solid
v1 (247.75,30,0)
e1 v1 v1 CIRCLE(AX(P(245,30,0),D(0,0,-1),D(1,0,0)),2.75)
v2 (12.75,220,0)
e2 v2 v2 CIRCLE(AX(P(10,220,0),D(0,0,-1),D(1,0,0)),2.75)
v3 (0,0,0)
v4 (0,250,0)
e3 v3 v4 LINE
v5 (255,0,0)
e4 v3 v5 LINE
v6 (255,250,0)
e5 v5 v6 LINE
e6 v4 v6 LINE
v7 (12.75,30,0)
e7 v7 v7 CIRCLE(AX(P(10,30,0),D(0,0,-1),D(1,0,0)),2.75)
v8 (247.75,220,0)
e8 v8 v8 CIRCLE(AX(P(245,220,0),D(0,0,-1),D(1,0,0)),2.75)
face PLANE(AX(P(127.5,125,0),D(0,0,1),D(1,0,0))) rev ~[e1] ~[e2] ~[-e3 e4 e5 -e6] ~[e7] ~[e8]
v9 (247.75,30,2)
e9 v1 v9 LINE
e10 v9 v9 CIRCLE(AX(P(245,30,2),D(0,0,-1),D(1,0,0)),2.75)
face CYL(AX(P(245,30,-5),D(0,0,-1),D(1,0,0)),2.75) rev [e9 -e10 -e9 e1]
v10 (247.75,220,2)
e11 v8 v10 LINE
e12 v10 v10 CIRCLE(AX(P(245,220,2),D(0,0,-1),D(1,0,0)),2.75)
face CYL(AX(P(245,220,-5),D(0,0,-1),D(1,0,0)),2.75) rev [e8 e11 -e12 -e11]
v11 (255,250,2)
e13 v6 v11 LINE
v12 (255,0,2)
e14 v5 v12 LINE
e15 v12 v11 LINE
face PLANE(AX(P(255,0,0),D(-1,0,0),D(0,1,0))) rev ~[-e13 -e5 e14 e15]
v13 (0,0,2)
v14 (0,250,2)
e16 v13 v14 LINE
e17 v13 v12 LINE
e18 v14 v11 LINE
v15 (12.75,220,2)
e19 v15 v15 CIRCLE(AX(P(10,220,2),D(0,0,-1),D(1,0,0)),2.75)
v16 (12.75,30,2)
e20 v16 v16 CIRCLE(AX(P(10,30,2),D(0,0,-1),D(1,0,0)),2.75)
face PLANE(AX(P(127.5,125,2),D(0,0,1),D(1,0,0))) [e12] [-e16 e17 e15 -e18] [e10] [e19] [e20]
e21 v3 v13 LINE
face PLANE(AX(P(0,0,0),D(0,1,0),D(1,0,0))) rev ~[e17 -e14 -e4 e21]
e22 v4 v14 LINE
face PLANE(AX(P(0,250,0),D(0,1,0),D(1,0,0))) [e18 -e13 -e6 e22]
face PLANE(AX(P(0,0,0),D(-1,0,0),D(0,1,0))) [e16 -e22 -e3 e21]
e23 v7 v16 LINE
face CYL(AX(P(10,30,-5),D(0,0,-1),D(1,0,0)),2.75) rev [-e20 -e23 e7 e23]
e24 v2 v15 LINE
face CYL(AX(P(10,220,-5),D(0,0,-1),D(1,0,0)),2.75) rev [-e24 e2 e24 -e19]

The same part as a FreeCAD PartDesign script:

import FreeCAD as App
import Part
import Sketcher
from FreeCAD import Vector

doc = App.newDocument("Part")
body = doc.addObject("PartDesign::Body", "Body")

# Sketch on XY plane
sketch1 = body.newObject("Sketcher::SketchObject", "Sketch")
sketch1.AttachmentSupport = (doc.getObject("XY_Plane"), [""])
sketch1.MapMode = "FlatFace"
sketch1.AttachmentOffset = App.Placement(Vector(0, 0, -5), App.Rotation())
sketch1.addGeometry(Part.Circle(Vector(245, 220, 0), Vector(0, 0, 1), 2.8), False)
sketch1.addConstraint([
    Sketcher.Constraint("Diameter", 0, 5.5),
    Sketcher.Constraint("DistanceX", -1, 1, 0, 3, 245.0),
    Sketcher.Constraint("DistanceY", -1, 1, 0, 3, 220.0),
])
pad1 = body.newObject("PartDesign::Pad", "Pad")
pad1.Profile = sketch1
pad1.Length = 10
body2 = doc.addObject("PartDesign::Body", "Body001")

# Sketch on XY plane
sketch2 = body2.newObject("Sketcher::SketchObject", "Sketch001")
sketch2.AttachmentSupport = (doc.getObject("XY_Plane001"), [""])
sketch2.MapMode = "FlatFace"
sketch2.AttachmentOffset = App.Placement(Vector(0, 0, -5), App.Rotation())
sketch2.addGeometry(Part.Circle(Vector(245, 30, 0), Vector(0, 0, 1), 2.8), False)
sketch2.addConstraint([
    Sketcher.Constraint("Diameter", 0, 5.5),
    Sketcher.Constraint("DistanceX", -1, 1, 0, 3, 245.0),
    Sketcher.Constraint("DistanceY", -1, 1, 0, 3, 30.0),
])
pad2 = body2.newObject("PartDesign::Pad", "Pad001")
pad2.Profile = sketch2
pad2.Length = 10
body3 = doc.addObject("PartDesign::Body", "Body002")

# Sketch on XY plane
sketch3 = body3.newObject("Sketcher::SketchObject", "Sketch002")
sketch3.AttachmentSupport = (doc.getObject("XY_Plane002"), [""])
sketch3.MapMode = "FlatFace"
sketch3.AttachmentOffset = App.Placement(Vector(0, 0, -5), App.Rotation())
sketch3.addGeometry(Part.Circle(Vector(10, 220, 0), Vector(0, 0, 1), 2.8), False)
sketch3.addConstraint([
    Sketcher.Constraint("Diameter", 0, 5.5),
    Sketcher.Constraint("DistanceX", -1, 1, 0, 3, 10.0),
    Sketcher.Constraint("DistanceY", -1, 1, 0, 3, 220.0),
])
pad3 = body3.newObject("PartDesign::Pad", "Pad002")
pad3.Profile = sketch3
pad3.Length = 10
body4 = doc.addObject("PartDesign::Body", "Body003")

# Sketch on XY plane
sketch4 = body4.newObject("Sketcher::SketchObject", "Sketch003")
sketch4.AttachmentSupport = (doc.getObject("XY_Plane003"), [""])
sketch4.MapMode = "FlatFace"
sketch4.AttachmentOffset = App.Placement(Vector(0, 0, -5), App.Rotation())
sketch4.addGeometry(Part.Circle(Vector(10, 30, 0), Vector(0, 0, 1), 2.8), False)
sketch4.addConstraint([
    Sketcher.Constraint("Diameter", 0, 5.5),
    Sketcher.Constraint("DistanceX", -1, 1, 0, 3, 10.0),
    Sketcher.Constraint("DistanceY", -1, 1, 0, 3, 30.0),
])
pad4 = body4.newObject("PartDesign::Pad", "Pad003")
pad4.Profile = sketch4
pad4.Length = 10
body5 = doc.addObject("PartDesign::Body", "Body004")

# Sketch on XY plane
sketch5 = body5.newObject("Sketcher::SketchObject", "Sketch004")
sketch5.AttachmentSupport = (doc.getObject("XY_Plane004"), [""])
sketch5.MapMode = "FlatFace"
sketch5.addGeometry([
    Part.LineSegment(Vector(0, 250, 0), Vector(0, 0, 0)),
    Part.LineSegment(Vector(0, 0, 0), Vector(255, 0, 0)),
    Part.LineSegment(Vector(255, 0, 0), Vector(255, 250, 0)),
    Part.LineSegment(Vector(255, 250, 0), Vector(0, 250, 0)),
], False)
sketch5.addConstraint([
    Sketcher.Constraint("Coincident", 0, 2, 1, 1),
    Sketcher.Constraint("Coincident", 1, 2, 2, 1),
    Sketcher.Constraint("Coincident", 2, 2, 3, 1),
    Sketcher.Constraint("Coincident", 3, 2, 0, 1),
    Sketcher.Constraint("Vertical", 0),
    Sketcher.Constraint("Horizontal", 1),
    Sketcher.Constraint("Vertical", 2),
    Sketcher.Constraint("Horizontal", 3),
    Sketcher.Constraint("Coincident", 0, 2, -1, 1),
    Sketcher.Constraint("DistanceX", 1, 1, 1, 2, 255.0),
    Sketcher.Constraint("DistanceY", 0, 2, 0, 1, 250.0),
])
pad5 = body5.newObject("PartDesign::Pad", "Pad004")
pad5.Profile = sketch5
pad5.Length = 2
doc.recompute()

boolean = body5.newObject("PartDesign::Boolean", "Boolean")
boolean.Type = "Cut"
boolean.addObjects([body4])
doc.recompute()

boolean2 = body5.newObject("PartDesign::Boolean", "Boolean001")
boolean2.Type = "Cut"
boolean2.addObjects([body3])
doc.recompute()

boolean3 = body5.newObject("PartDesign::Boolean", "Boolean002")
boolean3.Type = "Cut"
boolean3.addObjects([body2])
doc.recompute()

boolean4 = body5.newObject("PartDesign::Boolean", "Boolean003")
boolean4.Type = "Cut"
boolean4.addObjects([body])

doc.recompute()
